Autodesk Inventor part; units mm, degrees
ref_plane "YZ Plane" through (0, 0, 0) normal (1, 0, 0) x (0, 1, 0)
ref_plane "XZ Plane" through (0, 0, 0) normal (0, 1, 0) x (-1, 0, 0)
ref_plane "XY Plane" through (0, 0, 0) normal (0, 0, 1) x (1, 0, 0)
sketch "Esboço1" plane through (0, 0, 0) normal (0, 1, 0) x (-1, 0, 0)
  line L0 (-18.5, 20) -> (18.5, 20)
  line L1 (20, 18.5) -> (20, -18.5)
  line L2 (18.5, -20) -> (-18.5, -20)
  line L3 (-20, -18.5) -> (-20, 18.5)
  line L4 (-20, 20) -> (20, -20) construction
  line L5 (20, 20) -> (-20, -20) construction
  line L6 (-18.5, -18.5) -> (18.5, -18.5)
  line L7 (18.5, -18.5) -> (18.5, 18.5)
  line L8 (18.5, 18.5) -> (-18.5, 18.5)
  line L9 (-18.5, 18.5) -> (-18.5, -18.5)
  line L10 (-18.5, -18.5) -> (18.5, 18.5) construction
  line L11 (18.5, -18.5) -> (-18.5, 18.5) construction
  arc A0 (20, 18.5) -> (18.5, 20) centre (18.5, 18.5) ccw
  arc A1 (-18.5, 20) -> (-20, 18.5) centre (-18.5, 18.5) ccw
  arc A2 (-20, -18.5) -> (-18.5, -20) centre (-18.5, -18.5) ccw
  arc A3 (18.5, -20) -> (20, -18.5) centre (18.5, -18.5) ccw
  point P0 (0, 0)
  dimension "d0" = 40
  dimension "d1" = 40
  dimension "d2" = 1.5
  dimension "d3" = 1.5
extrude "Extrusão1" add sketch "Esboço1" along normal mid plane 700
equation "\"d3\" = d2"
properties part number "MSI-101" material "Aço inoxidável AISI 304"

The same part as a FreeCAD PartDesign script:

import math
import FreeCAD as App
import Part
import Sketcher

V = App.Vector


def add_polygon(sketch, points):
    """Adds a closed chain of lines whose ends are joined by coincident constraints."""
    first, n = sketch.GeometryCount, len(points)
    for a, b in zip(points, points[1:] + points[:1]):
        sketch.addGeometry(Part.LineSegment(App.Vector(*a, 0), App.Vector(*b, 0)), False)
    for i in range(n):
        sketch.addConstraint(Sketcher.Constraint("Coincident", first + i, 2, first + (i + 1) % n, 1))

doc = App.newDocument("Part")
body = doc.addObject("PartDesign::Body", "Body")

# Sketch on XZ plane
sketch1 = body.newObject("Sketcher::SketchObject", "Sketch")
sketch1.AttachmentSupport = (doc.getObject("XZ_Plane"), [""])
sketch1.MapMode = "FlatFace"
sketch1.addGeometry(Part.LineSegment(V(-18.5, 20, 0), V(18.5, 20, 0)), False)  # 0
sketch1.addGeometry(Part.ArcOfCircle(Part.Circle(V(18.5, 18.5, 0), V(0, 0, 1), 1.5), math.radians(0), math.radians(90)), False)  # 1
sketch1.addGeometry(Part.LineSegment(V(20, 18.5, 0), V(20, -18.5, 0)), False)  # 2
sketch1.addGeometry(Part.ArcOfCircle(Part.Circle(V(18.5, -18.5, 0), V(0, 0, 1), 1.5), math.radians(-90), math.radians(0)), False)  # 3
sketch1.addGeometry(Part.LineSegment(V(18.5, -20, 0), V(-18.5, -20, 0)), False)  # 4
sketch1.addGeometry(Part.ArcOfCircle(Part.Circle(V(-18.5, -18.5, 0), V(0, 0, 1), 1.5), math.radians(180), math.radians(270)), False)  # 5
sketch1.addGeometry(Part.LineSegment(V(-20, -18.5, 0), V(-20, 18.5, 0)), False)  # 6
sketch1.addGeometry(Part.ArcOfCircle(Part.Circle(V(-18.5, 18.5, 0), V(0, 0, 1), 1.5), math.radians(90), math.radians(180)), False)  # 7
add_polygon(sketch1, [(-18.5, -18.5), (18.5, -18.5), (18.5, 18.5), (-18.5, 18.5)])  # lines 8-11
sketch1.addConstraint(Sketcher.Constraint("Tangent", 0, 2, 1, 2))
sketch1.addConstraint(Sketcher.Constraint("Tangent", 1, 1, 2, 1))
sketch1.addConstraint(Sketcher.Constraint("Tangent", 2, 2, 3, 2))
sketch1.addConstraint(Sketcher.Constraint("Tangent", 3, 1, 4, 1))
sketch1.addConstraint(Sketcher.Constraint("Tangent", 4, 2, 5, 2))
sketch1.addConstraint(Sketcher.Constraint("Tangent", 5, 1, 6, 1))
sketch1.addConstraint(Sketcher.Constraint("Tangent", 6, 2, 7, 2))
sketch1.addConstraint(Sketcher.Constraint("Tangent", 7, 1, 0, 1))
sketch1.addConstraint(Sketcher.Constraint("Horizontal", 0))
sketch1.addConstraint(Sketcher.Constraint("Vertical", 2))
sketch1.addConstraint(Sketcher.Constraint("Horizontal", 4))
sketch1.addConstraint(Sketcher.Constraint("Vertical", 6))
sketch1.addConstraint(Sketcher.Constraint("Horizontal", 8))
sketch1.addConstraint(Sketcher.Constraint("Vertical", 9))
sketch1.addConstraint(Sketcher.Constraint("Horizontal", 10))
sketch1.addConstraint(Sketcher.Constraint("Vertical", 11))
sketch1.addConstraint(Sketcher.Constraint("Coincident", 8, 2, 3, 3))
sketch1.addConstraint(Sketcher.Constraint("Coincident", 9, 2, 1, 3))
sketch1.addConstraint(Sketcher.Constraint("Coincident", 10, 2, 7, 3))
sketch1.addConstraint(Sketcher.Constraint("Equal", 3, 5))
sketch1.addConstraint(Sketcher.Constraint("Symmetric", 1, 3, 5, 3, -1, 1))
sketch1.addConstraint(Sketcher.Constraint("Equal", 10, 2))
sketch1.addConstraint(Sketcher.Constraint("Radius", 1, 1.5))
sketch1.addConstraint(Sketcher.Constraint("DistanceX", 0, 1, 0, 2, 37.0))
pad1 = body.newObject("PartDesign::Pad", "Pad")
pad1.Profile = sketch1
pad1.Length = 700
pad1.Midplane = True

doc.recompute()
